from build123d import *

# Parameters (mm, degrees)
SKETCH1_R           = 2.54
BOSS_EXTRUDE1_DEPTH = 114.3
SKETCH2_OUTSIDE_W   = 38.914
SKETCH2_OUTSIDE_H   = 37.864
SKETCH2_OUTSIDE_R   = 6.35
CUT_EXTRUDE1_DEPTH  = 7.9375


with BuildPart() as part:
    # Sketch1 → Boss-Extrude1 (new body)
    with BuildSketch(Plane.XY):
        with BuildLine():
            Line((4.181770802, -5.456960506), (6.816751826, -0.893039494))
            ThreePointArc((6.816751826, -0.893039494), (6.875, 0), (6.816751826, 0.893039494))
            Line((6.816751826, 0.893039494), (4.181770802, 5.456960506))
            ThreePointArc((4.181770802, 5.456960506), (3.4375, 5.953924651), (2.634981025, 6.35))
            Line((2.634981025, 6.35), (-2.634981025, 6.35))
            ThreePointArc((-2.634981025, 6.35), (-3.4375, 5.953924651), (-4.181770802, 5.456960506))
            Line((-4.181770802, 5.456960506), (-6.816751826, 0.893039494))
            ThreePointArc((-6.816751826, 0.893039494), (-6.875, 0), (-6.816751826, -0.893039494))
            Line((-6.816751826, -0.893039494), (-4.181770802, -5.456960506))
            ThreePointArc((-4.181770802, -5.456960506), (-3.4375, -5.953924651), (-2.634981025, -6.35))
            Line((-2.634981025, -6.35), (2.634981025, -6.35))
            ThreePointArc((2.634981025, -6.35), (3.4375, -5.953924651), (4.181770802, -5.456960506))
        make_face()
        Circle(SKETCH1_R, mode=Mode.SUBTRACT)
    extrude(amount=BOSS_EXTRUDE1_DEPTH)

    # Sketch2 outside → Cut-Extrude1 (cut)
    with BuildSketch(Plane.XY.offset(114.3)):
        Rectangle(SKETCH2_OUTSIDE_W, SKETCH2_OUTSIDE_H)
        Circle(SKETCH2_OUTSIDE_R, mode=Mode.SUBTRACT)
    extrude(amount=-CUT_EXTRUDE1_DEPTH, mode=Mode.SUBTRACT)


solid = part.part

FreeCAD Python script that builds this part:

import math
import FreeCAD as App
import Part
import Sketcher

V = App.Vector
Q = App.Units.Quantity


def add_polygon(sketch, points):
    """Adds a closed chain of lines whose ends are joined by coincident constraints."""
    first, n = sketch.GeometryCount, len(points)
    for a, b in zip(points, points[1:] + points[:1]):
        sketch.addGeometry(Part.LineSegment(App.Vector(*a, 0), App.Vector(*b, 0)), False)
    for i in range(n):
        sketch.addConstraint(Sketcher.Constraint("Coincident", first + i, 2, first + (i + 1) % n, 1))

doc = App.newDocument("Part")
body = doc.addObject("PartDesign::Body", "Body")

sketch1 = body.newObject("Sketcher::SketchObject", "Sketch")
sketch1.AttachmentSupport = (doc.getObject("XY_Plane"), [""])
sketch1.MapMode = "FlatFace"
sketch1.addGeometry(Part.LineSegment(V(4.2, -5.5, 0), V(6.8, -0.9, 0)), False)
sketch1.addGeometry(Part.ArcOfCircle(Part.Circle(V(0, 0, 0), V(0, 0, 1), 6.9), math.radians(-7.46), math.radians(7.46)), False)
sketch1.addGeometry(Part.LineSegment(V(6.8, 0.9, 0), V(4.2, 5.5, 0)), False)
sketch1.addGeometry(Part.ArcOfCircle(Part.Circle(V(0, 0, 0), V(0, 0, 1), 6.9), math.radians(52.54), math.radians(67.46)), False)
sketch1.addGeometry(Part.LineSegment(V(2.6, 6.3, 0), V(-2.6, 6.3, 0)), False)
sketch1.addGeometry(Part.ArcOfCircle(Part.Circle(V(0, 0, 0), V(0, 0, 1), 6.9), math.radians(112.54), math.radians(127.46)), False)
sketch1.addGeometry(Part.LineSegment(V(-4.2, 5.5, 0), V(-6.8, 0.9, 0)), False)
sketch1.addGeometry(Part.ArcOfCircle(Part.Circle(V(0, 0, 0), V(0, 0, 1), 6.9), math.radians(172.54), math.radians(187.46)), False)
sketch1.addGeometry(Part.LineSegment(V(-6.8, -0.9, 0), V(-4.2, -5.5, 0)), False)
sketch1.addGeometry(Part.ArcOfCircle(Part.Circle(V(0, 0, 0), V(0, 0, 1), 6.9), math.radians(-127.46), math.radians(-112.54)), False)
sketch1.addGeometry(Part.LineSegment(V(-2.6, -6.3, 0), V(2.6, -6.3, 0)), False)
sketch1.addGeometry(Part.ArcOfCircle(Part.Circle(V(0, 0, 0), V(0, 0, 1), 6.9), math.radians(-67.46), math.radians(-52.54)), False)
sketch1.addGeometry(Part.Circle(V(0, 0, 0), V(0, 0, 1), 2.5), False)
sketch1.addConstraint(Sketcher.Constraint("Coincident", 0, 2, 1, 1))
sketch1.addConstraint(Sketcher.Constraint("Coincident", 1, 2, 2, 1))
sketch1.addConstraint(Sketcher.Constraint("Coincident", 2, 2, 3, 1))
sketch1.addConstraint(Sketcher.Constraint("Coincident", 3, 2, 4, 1))
sketch1.addConstraint(Sketcher.Constraint("Coincident", 4, 2, 5, 1))
sketch1.addConstraint(Sketcher.Constraint("Coincident", 5, 2, 6, 1))
sketch1.addConstraint(Sketcher.Constraint("Coincident", 6, 2, 7, 1))
sketch1.addConstraint(Sketcher.Constraint("Coincident", 7, 2, 8, 1))
sketch1.addConstraint(Sketcher.Constraint("Coincident", 8, 2, 9, 1))
sketch1.addConstraint(Sketcher.Constraint("Coincident", 9, 2, 10, 1))
sketch1.addConstraint(Sketcher.Constraint("Coincident", 10, 2, 11, 1))
sketch1.addConstraint(Sketcher.Constraint("Coincident", 11, 2, 0, 1))
sketch1.addConstraint(Sketcher.Constraint("Horizontal", 4))
sketch1.addConstraint(Sketcher.Constraint("Horizontal", 10))
sketch1.addConstraint(Sketcher.Constraint("Coincident", 1, 3, -1, 1))
sketch1.addConstraint(Sketcher.Constraint("Coincident", 3, 3, -1, 1))
sketch1.addConstraint(Sketcher.Constraint("Coincident", 5, 3, -1, 1))
sketch1.addConstraint(Sketcher.Constraint("Coincident", 7, 3, -1, 1))
sketch1.addConstraint(Sketcher.Constraint("Coincident", 9, 3, -1, 1))
sketch1.addConstraint(Sketcher.Constraint("Coincident", 11, 3, -1, 1))
sketch1.addConstraint(Sketcher.Constraint("Coincident", 12, 3, -1, 1))
sketch1.addConstraint(Sketcher.Constraint("Equal", 1, 3))
sketch1.addConstraint(Sketcher.Constraint("Equal", 3, 5))
sketch1.addConstraint(Sketcher.Constraint("Equal", 5, 7))
sketch1.addConstraint(Sketcher.Constraint("Equal", 7, 9))
sketch1.addConstraint(Sketcher.Constraint("Equal", 9, 11))
sketch1.addConstraint(Sketcher.Constraint("Parallel", 0, 6))
sketch1.addConstraint(Sketcher.Constraint("Parallel", 2, 8))
sketch1.addConstraint(Sketcher.Constraint("Horizontal", 2, 2, 5, 2))
sketch1.addConstraint(Sketcher.Constraint("Horizontal", 1, 2, 6, 2))
sketch1.addConstraint(Sketcher.Constraint("Horizontal", 0, 2, 7, 2))
sketch1.addConstraint(Sketcher.Constraint("Vertical", 0, 2, 1, 2))
sketch1.addConstraint(Sketcher.Constraint("Vertical", 4, 2, 9, 2))
sketch1.addConstraint(Sketcher.Constraint("Diameter", 12, Q("0.2 in")))
sketch1.addConstraint(Sketcher.Constraint("Angle", 0, Q("60 deg")))
sketch1.addConstraint(Sketcher.Constraint("DistanceY", -1, 1, 3, 2, Q("0.25 in")))
sketch1.addConstraint(Sketcher.Constraint("Radius", 1, 6.875))
sketch1.addConstraint(Sketcher.Constraint("DistanceY", 0, 2, 2, 2, Q("0.25 in")))
pad1 = body.newObject("PartDesign::Pad", "Pad")
pad1.Profile = sketch1
pad1.Length = Q("4.5 in")

sketch2 = body.newObject("Sketcher::SketchObject", "Sketch001")
sketch2.AttachmentSupport = (doc.getObject("XY_Plane"), [""])
sketch2.MapMode = "FlatFace"
sketch2.AttachmentOffset = App.Placement(V(0, 0, 4.5 * 25.4), App.Rotation())
add_polygon(sketch2, [(-19, 19), (-19, -19), (19, -19), (19, 19)])
sketch2.addGeometry(Part.Circle(V(0, 0, 0), V(0, 0, 1), 6), False)
sketch2.addConstraint(Sketcher.Constraint("Vertical", 0))
sketch2.addConstraint(Sketcher.Constraint("Horizontal", 1))
sketch2.addConstraint(Sketcher.Constraint("Vertical", 2))
sketch2.addConstraint(Sketcher.Constraint("Horizontal", 3))
sketch2.addConstraint(Sketcher.Constraint("Coincident", 4, 3, -1, 1))
sketch2.addConstraint(Sketcher.Constraint("Symmetric", 0, 2, 2, 2, -1, 1))
sketch2.addConstraint(Sketcher.Constraint("Diameter", 4, Q("0.5 in")))
sketch2.addConstraint(Sketcher.Constraint("DistanceX", 1, 1, 1, 2, 38.914))
sketch2.addConstraint(Sketcher.Constraint("DistanceY", 0, 2, 0, 1, 37.864))
pocket1 = body.newObject("PartDesign::Pocket", "Pocket")
pocket1.Profile = sketch2
pocket1.Length = Q("0.3125 in")

doc.recompute()
